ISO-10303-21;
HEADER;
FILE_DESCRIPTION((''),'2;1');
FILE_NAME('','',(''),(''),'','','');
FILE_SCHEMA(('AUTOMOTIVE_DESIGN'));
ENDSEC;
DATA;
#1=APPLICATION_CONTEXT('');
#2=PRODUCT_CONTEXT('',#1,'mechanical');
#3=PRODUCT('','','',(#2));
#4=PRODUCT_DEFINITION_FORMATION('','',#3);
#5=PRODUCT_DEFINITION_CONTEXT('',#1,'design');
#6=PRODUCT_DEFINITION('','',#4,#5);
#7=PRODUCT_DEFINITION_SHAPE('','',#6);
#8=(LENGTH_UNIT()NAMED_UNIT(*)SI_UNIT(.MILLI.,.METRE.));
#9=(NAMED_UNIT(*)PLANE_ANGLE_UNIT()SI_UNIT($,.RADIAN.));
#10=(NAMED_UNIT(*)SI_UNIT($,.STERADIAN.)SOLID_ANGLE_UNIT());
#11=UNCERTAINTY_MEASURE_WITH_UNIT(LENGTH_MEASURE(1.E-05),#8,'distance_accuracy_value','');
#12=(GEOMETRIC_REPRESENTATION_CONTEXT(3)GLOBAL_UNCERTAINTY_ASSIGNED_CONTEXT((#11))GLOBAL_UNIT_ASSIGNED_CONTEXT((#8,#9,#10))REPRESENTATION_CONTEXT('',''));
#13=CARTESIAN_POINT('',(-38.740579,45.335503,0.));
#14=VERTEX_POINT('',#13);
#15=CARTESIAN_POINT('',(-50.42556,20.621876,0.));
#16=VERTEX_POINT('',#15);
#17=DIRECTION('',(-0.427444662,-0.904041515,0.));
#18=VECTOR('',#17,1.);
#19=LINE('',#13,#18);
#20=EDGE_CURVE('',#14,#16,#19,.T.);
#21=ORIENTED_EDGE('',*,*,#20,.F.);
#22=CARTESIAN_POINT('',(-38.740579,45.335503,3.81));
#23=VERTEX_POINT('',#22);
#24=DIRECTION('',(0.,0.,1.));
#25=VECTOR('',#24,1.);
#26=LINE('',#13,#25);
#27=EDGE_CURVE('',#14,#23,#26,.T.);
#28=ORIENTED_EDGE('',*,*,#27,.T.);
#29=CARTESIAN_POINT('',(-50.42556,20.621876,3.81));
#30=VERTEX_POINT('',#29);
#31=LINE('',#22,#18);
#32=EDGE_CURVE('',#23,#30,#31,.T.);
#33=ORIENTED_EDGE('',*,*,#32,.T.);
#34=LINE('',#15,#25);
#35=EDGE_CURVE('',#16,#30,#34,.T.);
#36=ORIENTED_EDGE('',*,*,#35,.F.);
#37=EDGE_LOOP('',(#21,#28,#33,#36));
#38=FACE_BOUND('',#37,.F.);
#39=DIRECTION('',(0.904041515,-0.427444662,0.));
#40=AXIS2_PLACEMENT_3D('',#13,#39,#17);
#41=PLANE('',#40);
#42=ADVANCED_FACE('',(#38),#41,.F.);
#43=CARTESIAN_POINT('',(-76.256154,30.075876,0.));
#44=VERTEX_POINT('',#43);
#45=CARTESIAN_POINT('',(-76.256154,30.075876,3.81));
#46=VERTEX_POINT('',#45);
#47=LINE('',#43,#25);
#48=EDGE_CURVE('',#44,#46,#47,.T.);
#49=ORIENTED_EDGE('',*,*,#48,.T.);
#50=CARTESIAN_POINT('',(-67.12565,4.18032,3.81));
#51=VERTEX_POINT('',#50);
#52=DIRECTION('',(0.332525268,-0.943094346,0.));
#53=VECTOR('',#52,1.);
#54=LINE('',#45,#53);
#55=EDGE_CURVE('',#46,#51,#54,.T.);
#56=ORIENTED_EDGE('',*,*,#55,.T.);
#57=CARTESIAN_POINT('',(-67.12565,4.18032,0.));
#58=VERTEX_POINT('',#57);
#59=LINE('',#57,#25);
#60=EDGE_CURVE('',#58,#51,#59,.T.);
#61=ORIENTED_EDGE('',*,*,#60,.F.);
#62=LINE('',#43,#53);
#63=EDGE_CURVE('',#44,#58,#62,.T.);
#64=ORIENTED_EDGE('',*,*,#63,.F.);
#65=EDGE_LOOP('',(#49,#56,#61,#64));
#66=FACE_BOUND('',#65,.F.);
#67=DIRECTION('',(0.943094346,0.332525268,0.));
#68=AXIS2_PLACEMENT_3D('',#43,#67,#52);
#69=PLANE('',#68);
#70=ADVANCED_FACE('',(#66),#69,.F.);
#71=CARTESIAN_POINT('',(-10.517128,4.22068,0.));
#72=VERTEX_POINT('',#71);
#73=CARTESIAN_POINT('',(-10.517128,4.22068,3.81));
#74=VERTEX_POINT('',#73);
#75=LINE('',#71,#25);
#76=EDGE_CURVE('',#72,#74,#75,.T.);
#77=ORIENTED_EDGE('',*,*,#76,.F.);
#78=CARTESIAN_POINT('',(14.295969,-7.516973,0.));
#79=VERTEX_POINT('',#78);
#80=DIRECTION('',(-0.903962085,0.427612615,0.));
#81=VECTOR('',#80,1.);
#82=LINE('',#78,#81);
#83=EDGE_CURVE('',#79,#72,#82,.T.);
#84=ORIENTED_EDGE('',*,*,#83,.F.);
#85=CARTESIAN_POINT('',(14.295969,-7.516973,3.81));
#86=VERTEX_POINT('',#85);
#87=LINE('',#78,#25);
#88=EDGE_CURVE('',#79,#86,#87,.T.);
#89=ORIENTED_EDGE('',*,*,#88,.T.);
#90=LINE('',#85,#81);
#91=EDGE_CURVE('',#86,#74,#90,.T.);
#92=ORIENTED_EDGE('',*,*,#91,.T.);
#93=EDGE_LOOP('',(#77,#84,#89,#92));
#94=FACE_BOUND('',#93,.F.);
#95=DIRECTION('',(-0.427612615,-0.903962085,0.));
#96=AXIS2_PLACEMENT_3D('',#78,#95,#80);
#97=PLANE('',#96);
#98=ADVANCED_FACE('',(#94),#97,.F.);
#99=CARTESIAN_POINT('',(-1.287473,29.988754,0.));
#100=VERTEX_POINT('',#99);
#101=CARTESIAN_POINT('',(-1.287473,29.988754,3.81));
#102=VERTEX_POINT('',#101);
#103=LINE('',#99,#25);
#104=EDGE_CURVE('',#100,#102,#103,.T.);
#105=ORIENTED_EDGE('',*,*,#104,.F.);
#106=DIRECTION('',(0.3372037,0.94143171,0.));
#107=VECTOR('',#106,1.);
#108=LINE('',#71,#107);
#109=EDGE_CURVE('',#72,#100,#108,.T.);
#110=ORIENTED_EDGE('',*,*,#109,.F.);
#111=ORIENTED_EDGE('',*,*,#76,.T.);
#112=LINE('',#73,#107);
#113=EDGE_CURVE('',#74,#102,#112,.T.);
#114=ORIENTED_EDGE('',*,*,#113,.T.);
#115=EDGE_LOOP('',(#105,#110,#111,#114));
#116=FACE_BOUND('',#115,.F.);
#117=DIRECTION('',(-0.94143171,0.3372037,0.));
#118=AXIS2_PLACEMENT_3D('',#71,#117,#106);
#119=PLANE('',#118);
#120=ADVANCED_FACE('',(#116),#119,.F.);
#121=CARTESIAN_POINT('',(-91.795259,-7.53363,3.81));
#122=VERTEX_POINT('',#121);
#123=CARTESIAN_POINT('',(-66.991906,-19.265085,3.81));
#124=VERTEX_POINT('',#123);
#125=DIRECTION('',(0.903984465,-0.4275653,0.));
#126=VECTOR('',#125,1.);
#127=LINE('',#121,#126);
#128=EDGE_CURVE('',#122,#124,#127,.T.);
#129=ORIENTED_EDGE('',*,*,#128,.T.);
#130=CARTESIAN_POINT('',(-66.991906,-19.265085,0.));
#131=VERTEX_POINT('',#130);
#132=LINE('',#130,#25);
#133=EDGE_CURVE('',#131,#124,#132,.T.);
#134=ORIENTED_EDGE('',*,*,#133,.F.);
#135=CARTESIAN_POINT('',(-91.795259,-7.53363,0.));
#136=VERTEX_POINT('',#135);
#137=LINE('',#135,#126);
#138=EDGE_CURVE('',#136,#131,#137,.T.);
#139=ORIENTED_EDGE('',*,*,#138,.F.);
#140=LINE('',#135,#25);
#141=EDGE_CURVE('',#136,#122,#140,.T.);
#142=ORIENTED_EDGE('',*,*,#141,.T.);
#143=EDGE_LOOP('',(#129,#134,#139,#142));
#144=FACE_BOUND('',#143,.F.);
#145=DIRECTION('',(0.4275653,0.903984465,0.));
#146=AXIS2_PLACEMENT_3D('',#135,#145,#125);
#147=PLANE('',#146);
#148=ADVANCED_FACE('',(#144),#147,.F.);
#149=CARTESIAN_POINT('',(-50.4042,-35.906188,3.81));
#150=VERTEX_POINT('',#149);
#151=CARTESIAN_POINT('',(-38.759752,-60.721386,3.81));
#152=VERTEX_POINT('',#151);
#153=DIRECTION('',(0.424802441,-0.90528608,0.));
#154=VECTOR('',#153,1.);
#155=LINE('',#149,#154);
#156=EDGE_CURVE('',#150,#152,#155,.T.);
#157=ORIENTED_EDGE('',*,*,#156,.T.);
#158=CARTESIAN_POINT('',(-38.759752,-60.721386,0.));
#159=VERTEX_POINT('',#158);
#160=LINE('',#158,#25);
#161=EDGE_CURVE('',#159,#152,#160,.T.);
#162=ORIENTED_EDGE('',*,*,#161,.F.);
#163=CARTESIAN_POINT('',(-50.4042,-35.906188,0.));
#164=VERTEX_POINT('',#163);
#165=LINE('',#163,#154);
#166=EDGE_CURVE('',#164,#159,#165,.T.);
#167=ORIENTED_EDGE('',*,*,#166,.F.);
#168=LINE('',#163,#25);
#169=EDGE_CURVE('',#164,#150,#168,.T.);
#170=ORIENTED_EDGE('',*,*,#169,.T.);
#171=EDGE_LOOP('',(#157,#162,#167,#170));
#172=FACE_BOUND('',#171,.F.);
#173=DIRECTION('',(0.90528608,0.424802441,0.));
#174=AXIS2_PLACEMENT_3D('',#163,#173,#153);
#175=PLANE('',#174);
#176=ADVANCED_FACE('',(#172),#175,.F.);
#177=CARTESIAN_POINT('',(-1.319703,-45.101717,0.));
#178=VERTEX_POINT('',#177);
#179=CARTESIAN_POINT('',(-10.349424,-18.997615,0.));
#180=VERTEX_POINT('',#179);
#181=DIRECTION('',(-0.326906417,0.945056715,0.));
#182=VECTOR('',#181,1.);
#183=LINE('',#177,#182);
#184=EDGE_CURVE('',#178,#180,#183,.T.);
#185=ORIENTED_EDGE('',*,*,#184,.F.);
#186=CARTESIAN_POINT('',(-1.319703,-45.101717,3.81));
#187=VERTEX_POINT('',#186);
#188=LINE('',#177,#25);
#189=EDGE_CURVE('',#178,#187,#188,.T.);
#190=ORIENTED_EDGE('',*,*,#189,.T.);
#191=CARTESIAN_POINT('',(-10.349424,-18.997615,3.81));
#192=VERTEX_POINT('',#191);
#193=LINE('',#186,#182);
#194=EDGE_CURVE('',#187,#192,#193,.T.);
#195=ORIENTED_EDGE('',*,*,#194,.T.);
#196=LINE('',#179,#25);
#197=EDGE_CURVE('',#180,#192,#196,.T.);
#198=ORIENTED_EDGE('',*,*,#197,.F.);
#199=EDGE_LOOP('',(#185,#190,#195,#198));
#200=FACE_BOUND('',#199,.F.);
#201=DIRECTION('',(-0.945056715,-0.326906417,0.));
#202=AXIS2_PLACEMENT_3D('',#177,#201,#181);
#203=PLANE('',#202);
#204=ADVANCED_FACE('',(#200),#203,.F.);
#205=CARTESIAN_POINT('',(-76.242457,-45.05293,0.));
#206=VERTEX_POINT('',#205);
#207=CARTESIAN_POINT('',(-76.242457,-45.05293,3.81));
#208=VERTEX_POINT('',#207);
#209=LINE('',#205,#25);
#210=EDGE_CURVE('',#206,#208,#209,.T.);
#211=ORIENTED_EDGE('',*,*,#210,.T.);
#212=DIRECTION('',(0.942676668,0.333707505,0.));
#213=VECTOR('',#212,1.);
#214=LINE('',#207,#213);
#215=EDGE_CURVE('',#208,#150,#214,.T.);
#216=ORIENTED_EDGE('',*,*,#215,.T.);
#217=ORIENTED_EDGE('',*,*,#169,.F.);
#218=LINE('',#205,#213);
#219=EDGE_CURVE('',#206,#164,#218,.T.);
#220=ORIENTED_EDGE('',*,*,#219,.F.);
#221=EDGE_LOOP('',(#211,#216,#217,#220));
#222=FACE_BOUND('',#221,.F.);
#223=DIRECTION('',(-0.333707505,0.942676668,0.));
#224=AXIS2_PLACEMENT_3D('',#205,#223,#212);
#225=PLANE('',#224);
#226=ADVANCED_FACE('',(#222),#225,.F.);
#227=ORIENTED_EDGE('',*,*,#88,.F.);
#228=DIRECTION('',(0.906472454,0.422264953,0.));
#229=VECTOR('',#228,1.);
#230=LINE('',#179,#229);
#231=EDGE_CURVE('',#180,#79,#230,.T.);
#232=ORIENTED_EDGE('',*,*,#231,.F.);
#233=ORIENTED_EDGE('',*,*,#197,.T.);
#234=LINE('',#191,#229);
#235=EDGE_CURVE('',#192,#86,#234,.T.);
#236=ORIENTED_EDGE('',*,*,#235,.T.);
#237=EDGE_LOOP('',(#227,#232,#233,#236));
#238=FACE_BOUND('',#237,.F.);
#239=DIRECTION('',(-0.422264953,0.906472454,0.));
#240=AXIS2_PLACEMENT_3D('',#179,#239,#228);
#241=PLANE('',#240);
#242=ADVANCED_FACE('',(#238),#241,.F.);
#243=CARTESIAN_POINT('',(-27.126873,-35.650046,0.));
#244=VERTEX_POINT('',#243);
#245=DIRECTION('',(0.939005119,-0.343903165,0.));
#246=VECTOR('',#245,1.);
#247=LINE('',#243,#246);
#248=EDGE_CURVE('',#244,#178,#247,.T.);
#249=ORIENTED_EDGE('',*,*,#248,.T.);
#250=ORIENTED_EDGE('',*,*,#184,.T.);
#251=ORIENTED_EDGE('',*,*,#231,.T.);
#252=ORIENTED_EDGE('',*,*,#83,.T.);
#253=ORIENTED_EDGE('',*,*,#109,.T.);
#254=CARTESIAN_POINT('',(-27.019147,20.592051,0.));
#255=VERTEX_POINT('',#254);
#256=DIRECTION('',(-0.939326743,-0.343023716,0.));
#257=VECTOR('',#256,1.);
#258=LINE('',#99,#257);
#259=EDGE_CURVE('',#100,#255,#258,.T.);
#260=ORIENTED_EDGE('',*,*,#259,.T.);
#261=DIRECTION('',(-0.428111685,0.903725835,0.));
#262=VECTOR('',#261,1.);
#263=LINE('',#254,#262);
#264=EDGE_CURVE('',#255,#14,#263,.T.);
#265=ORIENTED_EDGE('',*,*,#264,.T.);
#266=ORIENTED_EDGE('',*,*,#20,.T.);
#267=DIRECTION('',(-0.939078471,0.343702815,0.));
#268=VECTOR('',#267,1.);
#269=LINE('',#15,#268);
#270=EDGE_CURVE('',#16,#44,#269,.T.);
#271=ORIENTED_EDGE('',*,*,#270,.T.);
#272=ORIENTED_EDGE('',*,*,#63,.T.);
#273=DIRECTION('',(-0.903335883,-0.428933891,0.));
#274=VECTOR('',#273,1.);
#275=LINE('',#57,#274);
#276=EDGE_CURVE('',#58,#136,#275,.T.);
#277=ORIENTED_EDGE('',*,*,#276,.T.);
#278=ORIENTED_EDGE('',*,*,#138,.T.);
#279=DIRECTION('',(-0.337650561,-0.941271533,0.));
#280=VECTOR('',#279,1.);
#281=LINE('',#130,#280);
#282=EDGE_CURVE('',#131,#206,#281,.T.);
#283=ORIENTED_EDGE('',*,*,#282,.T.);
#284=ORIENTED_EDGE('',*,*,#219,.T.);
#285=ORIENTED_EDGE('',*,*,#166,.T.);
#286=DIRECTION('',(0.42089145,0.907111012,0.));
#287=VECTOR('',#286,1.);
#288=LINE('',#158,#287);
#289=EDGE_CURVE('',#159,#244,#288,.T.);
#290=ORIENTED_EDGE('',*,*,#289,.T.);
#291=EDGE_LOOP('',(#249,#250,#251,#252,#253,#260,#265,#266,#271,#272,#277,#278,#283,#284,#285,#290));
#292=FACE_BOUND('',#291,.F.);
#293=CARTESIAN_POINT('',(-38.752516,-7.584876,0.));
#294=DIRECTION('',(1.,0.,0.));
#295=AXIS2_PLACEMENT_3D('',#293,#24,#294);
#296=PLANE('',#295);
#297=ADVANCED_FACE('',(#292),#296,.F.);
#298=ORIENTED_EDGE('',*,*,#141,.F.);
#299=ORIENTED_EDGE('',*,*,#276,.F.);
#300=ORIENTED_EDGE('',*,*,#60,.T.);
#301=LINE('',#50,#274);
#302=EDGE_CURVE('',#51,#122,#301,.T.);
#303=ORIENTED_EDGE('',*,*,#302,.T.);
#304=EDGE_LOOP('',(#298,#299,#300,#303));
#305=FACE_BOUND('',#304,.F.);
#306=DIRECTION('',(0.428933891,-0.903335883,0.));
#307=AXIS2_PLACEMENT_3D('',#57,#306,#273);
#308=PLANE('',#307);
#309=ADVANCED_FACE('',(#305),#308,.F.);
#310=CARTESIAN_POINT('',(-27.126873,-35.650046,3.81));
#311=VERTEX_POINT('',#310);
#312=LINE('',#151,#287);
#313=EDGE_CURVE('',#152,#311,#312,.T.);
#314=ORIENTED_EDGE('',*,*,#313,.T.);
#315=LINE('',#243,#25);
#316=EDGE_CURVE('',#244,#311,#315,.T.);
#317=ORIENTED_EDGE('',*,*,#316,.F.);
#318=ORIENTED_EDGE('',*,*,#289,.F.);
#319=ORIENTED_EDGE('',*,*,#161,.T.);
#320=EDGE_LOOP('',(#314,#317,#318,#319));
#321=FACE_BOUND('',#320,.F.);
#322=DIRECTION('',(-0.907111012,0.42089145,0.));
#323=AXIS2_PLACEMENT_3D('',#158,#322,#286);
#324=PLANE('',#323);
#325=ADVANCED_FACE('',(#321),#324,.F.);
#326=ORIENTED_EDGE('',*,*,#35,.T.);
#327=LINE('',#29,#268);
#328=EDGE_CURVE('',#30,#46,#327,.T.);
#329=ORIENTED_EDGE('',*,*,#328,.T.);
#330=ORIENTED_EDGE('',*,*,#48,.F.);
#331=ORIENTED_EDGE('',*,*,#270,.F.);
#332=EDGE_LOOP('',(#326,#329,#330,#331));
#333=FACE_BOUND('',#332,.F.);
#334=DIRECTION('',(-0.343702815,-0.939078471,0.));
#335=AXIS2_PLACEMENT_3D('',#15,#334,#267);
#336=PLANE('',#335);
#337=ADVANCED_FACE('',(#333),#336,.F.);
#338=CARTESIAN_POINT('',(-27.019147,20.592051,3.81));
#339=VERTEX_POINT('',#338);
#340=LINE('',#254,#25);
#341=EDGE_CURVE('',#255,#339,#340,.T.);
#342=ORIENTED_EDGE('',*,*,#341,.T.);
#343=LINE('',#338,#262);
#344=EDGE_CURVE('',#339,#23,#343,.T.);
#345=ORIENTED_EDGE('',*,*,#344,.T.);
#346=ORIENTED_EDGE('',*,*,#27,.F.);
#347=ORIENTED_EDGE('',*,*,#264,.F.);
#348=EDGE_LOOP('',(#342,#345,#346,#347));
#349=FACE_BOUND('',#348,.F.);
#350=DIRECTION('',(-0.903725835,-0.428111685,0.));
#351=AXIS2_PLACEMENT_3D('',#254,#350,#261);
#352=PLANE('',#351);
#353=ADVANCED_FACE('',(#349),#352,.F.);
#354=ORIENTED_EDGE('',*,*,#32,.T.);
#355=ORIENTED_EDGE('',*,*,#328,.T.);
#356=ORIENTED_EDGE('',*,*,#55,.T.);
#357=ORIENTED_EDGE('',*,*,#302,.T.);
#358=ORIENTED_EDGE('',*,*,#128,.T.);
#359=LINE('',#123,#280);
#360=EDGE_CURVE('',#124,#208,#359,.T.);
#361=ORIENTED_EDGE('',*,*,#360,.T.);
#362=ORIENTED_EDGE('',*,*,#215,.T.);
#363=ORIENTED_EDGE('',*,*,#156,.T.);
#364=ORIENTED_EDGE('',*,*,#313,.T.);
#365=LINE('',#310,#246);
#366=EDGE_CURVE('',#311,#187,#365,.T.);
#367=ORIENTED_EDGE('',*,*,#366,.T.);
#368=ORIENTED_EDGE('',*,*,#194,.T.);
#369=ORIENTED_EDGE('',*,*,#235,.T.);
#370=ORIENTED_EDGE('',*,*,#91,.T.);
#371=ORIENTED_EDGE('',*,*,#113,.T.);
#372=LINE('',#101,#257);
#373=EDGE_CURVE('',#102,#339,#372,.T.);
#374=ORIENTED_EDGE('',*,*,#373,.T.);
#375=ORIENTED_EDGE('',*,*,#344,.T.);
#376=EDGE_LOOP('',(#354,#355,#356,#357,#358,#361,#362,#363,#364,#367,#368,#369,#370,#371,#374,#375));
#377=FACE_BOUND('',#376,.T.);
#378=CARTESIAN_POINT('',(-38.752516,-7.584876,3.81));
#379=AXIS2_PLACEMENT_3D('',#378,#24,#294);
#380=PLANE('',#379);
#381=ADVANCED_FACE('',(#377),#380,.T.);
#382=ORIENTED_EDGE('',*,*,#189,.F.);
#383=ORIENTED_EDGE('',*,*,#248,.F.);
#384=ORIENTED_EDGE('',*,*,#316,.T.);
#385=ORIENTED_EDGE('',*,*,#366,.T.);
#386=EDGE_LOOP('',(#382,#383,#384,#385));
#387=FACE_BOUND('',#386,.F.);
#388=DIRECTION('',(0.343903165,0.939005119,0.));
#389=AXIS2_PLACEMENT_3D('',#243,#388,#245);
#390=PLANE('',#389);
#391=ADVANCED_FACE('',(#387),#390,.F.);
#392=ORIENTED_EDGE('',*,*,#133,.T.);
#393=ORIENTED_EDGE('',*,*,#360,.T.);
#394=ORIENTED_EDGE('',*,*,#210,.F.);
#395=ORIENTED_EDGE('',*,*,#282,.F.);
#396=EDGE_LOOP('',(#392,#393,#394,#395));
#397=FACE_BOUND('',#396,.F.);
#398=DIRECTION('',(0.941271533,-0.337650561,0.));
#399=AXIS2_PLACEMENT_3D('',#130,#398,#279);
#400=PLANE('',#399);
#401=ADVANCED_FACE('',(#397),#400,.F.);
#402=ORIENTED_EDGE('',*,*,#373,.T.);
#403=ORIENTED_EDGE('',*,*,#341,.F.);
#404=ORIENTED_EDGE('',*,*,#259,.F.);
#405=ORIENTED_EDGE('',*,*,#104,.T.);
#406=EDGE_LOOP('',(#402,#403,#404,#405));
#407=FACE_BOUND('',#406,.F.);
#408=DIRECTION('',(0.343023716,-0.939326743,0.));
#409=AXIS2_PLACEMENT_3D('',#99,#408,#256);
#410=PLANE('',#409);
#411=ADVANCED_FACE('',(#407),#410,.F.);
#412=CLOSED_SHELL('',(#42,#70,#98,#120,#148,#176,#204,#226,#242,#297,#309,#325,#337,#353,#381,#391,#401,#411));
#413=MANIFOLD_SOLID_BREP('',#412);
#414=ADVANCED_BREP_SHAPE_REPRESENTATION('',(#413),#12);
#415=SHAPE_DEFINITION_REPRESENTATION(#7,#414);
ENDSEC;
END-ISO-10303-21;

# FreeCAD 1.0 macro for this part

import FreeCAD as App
import Part
import Sketcher

V = App.Vector
Q = App.Units.Quantity

doc = App.newDocument("Part")
params = doc.addObject("Spreadsheet::Sheet", "Params")
for row, (alias, value) in enumerate([
    ("pad1_length", "0.15 in"),
], start=1):
    params.set(f"A{row}", alias)
    params.set(f"B{row}", "=" + value)
    params.setAlias(f"B{row}", alias)

body = doc.addObject("PartDesign::Body", "Body")

sketch1 = doc.addObject("Sketcher::SketchObject", "Sketch")
body.addObject(sketch1)
sketch1.AttachmentSupport = (doc.XY_Plane, [""])
sketch1.MapMode = "FlatFace"
sketch1.addGeometry(Part.LineSegment(V(-39, 45, 0), V(-50, 21, 0)), False)
sketch1.addGeometry(Part.LineSegment(V(-50, 21, 0), V(-76, 30, 0)), False)
sketch1.addGeometry(Part.LineSegment(V(-76, 30, 0), V(-67, 4, 0)), False)
sketch1.addGeometry(Part.LineSegment(V(-67, 4, 0), V(-92, -8, 0)), False)
sketch1.addGeometry(Part.LineSegment(V(-92, -8, 0), V(-67, -19, 0)), False)
sketch1.addGeometry(Part.LineSegment(V(-67, -19, 0), V(-76, -45, 0)), False)
sketch1.addGeometry(Part.LineSegment(V(-76, -45, 0), V(-50, -36, 0)), False)
sketch1.addGeometry(Part.LineSegment(V(-50, -36, 0), V(-39, -61, 0)), False)
sketch1.addGeometry(Part.LineSegment(V(-39, -61, 0), V(-27, -36, 0)), False)
sketch1.addGeometry(Part.LineSegment(V(-27, -36, 0), V(-1, -45, 0)), False)
sketch1.addGeometry(Part.LineSegment(V(-1, -45, 0), V(-10, -19, 0)), False)
sketch1.addGeometry(Part.LineSegment(V(-10, -19, 0), V(14, -8, 0)), False)
sketch1.addGeometry(Part.LineSegment(V(14, -8, 0), V(-11, 4, 0)), False)
sketch1.addGeometry(Part.LineSegment(V(-11, 4, 0), V(-1, 30, 0)), False)
sketch1.addGeometry(Part.LineSegment(V(-1, 30, 0), V(-27, 21, 0)), False)
sketch1.addGeometry(Part.LineSegment(V(-27, 21, 0), V(-39, 45, 0)), False)
sketch1.addConstraint(Sketcher.Constraint("Coincident", 0, 2, 1, 1))
sketch1.addConstraint(Sketcher.Constraint("Coincident", 1, 2, 2, 1))
sketch1.addConstraint(Sketcher.Constraint("Coincident", 2, 2, 3, 1))
sketch1.addConstraint(Sketcher.Constraint("Coincident", 3, 2, 4, 1))
sketch1.addConstraint(Sketcher.Constraint("Coincident", 4, 2, 5, 1))
sketch1.addConstraint(Sketcher.Constraint("Coincident", 5, 2, 6, 1))
sketch1.addConstraint(Sketcher.Constraint("Coincident", 6, 2, 7, 1))
sketch1.addConstraint(Sketcher.Constraint("Coincident", 7, 2, 8, 1))
sketch1.addConstraint(Sketcher.Constraint("Coincident", 8, 2, 9, 1))
sketch1.addConstraint(Sketcher.Constraint("Coincident", 9, 2, 10, 1))
sketch1.addConstraint(Sketcher.Constraint("Coincident", 10, 2, 11, 1))
sketch1.addConstraint(Sketcher.Constraint("Coincident", 11, 2, 12, 1))
sketch1.addConstraint(Sketcher.Constraint("Coincident", 12, 2, 13, 1))
sketch1.addConstraint(Sketcher.Constraint("Coincident", 13, 2, 14, 1))
sketch1.addConstraint(Sketcher.Constraint("Coincident", 14, 2, 15, 1))
sketch1.addConstraint(Sketcher.Constraint("Coincident", 15, 2, 0, 1))
sketch1.addConstraint(Sketcher.Constraint("DistanceX", 6, 2, -1, 1, Q("50.4042 mm")))
sketch1.addConstraint(Sketcher.Constraint("DistanceY", 0, 2, 1, 2, Q("9.454 mm")))
sketch1.addConstraint(Sketcher.Constraint("DistanceX", 3, 2, 0, 2, Q("41.369699 mm")))
sketch1.addConstraint(Sketcher.Constraint("DistanceY", 5, 2, 3, 2, Q("37.5193 mm")))
sketch1.addConstraint(Sketcher.Constraint("DistanceY", 7, 2, 6, 2, Q("24.815198 mm")))
sketch1.addConstraint(Sketcher.Constraint("DistanceY", 7, 2, 4, 2, Q("41.456301 mm")))
sketch1.addConstraint(Sketcher.Constraint("DistanceX", 8, 2, 13, 2, Q("25.8394 mm")))
sketch1.addConstraint(Sketcher.Constraint("DistanceY", 8, 2, 13, 2, Q("65.6388 mm")))
sketch1.addConstraint(Sketcher.Constraint("Distance", 1, Q("27.506321 mm")))
sketch1.addConstraint(Sketcher.Constraint("Distance", 4, Q("27.437809 mm")))
sketch1.addConstraint(Sketcher.Constraint("Distance", 5, Q("27.396818 mm")))
sketch1.addConstraint(Sketcher.Constraint("Distance", 6, Q("27.409458 mm")))
sketch1.addConstraint(Sketcher.Constraint("Distance", 10, Q("27.621731 mm")))
sketch1.addConstraint(Sketcher.Constraint("Distance", 14, Q("27.393742 mm")))
sketch1.addConstraint(Sketcher.Constraint("Distance", 15, Q("27.379379 mm")))
sketch1.addConstraint(Sketcher.Constraint("DistanceX", 0, 2, -1, 1, Q("50.42556 mm")))
sketch1.addConstraint(Sketcher.Constraint("DistanceX", 2, 2, -1, 1, Q("67.12565 mm")))
sketch1.addConstraint(Sketcher.Constraint("DistanceY", -1, 1, 2, 2, Q("4.18032 mm")))
sketch1.addConstraint(Sketcher.Constraint("DistanceY", 3, 2, -1, 1, Q("7.53363 mm")))
sketch1.addConstraint(Sketcher.Constraint("DistanceX", -1, 1, 11, 2, Q("14.295969 mm")))
sketch1.addConstraint(Sketcher.Constraint("DistanceY", -1, 1, 12, 2, Q("4.22068 mm")))
sketch1.addConstraint(Sketcher.Constraint("DistanceY", -1, 1, 14, 2, Q("20.592051 mm")))
sketch1.addConstraint(Sketcher.Constraint("DistanceX", 15, 2, -1, 1, Q("38.740579 mm")))
sketch1.addConstraint(Sketcher.Constraint("DistanceY", 4, 2, 0, 2, Q("39.886961 mm")))
sketch1.addConstraint(Sketcher.Constraint("DistanceX", 6, 2, 7, 2, Q("11.644448 mm")))
sketch1.addConstraint(Sketcher.Constraint("DistanceY", 6, 2, 8, 2, Q("0.256142 mm")))
sketch1.addConstraint(Sketcher.Constraint("DistanceX", 7, 2, 8, 2, Q("11.632879 mm")))
sketch1.addConstraint(Sketcher.Constraint("DistanceX", 8, 2, 9, 2, Q("25.80717 mm")))
sketch1.addConstraint(Sketcher.Constraint("DistanceY", 9, 2, 8, 2, Q("9.451671 mm")))
sketch1.addConstraint(Sketcher.Constraint("DistanceX", 8, 2, 10, 2, Q("16.777449 mm")))
sketch1.addConstraint(Sketcher.Constraint("DistanceY", 11, 2, 0, 2, Q("28.138849 mm")))
sketch1.addConstraint(Sketcher.Constraint("DistanceX", 0, 2, 12, 2, Q("39.908432 mm")))
pad1 = doc.addObject("PartDesign::Pad", "Pad")
body.addObject(pad1)
pad1.Profile = sketch1
pad1.setExpression("Length", "Params.pad1_length")

doc.recompute()
